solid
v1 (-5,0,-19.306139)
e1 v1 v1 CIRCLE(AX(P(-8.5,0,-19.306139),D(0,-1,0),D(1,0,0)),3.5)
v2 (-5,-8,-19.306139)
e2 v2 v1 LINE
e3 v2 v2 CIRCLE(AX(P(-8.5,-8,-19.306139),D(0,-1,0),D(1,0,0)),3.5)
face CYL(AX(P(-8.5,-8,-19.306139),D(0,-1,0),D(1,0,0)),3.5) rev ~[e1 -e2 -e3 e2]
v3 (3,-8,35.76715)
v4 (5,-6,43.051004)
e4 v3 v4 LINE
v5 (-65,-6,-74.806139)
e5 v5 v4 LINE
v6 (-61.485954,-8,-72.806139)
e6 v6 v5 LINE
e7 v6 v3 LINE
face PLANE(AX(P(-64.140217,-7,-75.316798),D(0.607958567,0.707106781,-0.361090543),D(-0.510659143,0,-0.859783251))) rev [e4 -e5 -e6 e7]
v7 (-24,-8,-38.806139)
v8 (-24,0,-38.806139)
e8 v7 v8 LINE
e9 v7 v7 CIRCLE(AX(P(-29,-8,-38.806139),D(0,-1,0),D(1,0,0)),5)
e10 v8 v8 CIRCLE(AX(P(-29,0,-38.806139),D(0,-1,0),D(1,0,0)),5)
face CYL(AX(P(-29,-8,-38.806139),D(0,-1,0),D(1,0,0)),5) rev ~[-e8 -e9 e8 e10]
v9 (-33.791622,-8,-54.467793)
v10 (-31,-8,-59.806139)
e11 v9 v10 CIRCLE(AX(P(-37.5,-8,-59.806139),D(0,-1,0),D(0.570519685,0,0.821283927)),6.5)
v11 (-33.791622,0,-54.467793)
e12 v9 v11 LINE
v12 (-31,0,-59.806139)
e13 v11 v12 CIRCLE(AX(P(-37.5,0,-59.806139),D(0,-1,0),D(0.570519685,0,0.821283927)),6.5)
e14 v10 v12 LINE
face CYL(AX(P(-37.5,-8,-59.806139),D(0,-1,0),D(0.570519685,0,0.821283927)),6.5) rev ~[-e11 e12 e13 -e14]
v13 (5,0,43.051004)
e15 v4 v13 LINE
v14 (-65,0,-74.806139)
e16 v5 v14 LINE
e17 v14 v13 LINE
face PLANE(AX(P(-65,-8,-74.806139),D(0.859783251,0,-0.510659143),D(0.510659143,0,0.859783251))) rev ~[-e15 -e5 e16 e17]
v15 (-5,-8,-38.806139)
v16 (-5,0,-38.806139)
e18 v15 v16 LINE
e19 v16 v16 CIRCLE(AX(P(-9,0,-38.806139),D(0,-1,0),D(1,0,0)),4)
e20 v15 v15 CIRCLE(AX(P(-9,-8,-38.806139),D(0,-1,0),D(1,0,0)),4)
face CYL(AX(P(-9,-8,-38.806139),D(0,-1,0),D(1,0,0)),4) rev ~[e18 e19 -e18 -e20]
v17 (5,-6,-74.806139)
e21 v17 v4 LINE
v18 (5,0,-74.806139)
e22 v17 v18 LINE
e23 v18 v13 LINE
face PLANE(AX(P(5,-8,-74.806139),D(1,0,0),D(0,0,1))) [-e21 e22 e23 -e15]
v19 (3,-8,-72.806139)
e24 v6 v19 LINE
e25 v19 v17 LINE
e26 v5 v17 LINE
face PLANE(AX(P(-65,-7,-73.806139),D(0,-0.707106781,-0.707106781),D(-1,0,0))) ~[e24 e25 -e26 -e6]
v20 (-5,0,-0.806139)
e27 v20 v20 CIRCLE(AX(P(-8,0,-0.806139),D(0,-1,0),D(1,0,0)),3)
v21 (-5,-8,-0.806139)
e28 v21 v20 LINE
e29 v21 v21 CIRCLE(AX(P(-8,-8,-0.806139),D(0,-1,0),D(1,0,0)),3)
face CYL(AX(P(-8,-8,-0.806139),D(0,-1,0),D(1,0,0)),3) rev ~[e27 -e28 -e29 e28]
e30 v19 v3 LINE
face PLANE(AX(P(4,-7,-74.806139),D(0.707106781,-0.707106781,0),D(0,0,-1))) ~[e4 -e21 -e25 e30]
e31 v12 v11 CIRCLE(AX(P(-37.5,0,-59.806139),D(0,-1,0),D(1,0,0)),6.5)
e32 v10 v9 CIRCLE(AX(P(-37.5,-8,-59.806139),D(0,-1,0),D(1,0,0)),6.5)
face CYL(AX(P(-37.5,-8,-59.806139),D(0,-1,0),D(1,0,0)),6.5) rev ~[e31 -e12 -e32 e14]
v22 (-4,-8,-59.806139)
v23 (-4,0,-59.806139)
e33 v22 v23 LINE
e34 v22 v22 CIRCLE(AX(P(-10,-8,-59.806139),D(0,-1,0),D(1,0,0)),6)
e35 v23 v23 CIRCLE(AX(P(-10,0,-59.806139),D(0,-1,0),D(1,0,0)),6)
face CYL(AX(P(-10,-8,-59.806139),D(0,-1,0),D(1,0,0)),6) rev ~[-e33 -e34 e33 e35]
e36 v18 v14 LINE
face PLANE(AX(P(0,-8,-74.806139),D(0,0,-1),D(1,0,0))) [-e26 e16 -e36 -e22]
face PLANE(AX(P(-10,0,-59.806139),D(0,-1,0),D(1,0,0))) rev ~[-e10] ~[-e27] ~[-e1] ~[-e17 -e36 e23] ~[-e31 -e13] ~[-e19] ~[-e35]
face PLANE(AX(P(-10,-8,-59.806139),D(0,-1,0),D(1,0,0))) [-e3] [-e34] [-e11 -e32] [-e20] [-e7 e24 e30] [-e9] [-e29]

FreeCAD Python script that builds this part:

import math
import FreeCAD as App
import Part
import Sketcher

V = App.Vector


def edges_at(feature, points):
    """Names of the edges that pass closest to the given points."""
    edges = feature.Shape.Edges
    near = lambda p: min(range(len(edges)), key=lambda i: edges[i].distToShape(Part.Vertex(*p))[0])
    return sorted({f"Edge{near(p) + 1}" for p in points})


def add_polygon(sketch, points):
    """Adds a closed chain of lines whose ends are joined by coincident constraints."""
    first, n = sketch.GeometryCount, len(points)
    for a, b in zip(points, points[1:] + points[:1]):
        sketch.addGeometry(Part.LineSegment(App.Vector(*a, 0), App.Vector(*b, 0)), False)
    for i in range(n):
        sketch.addConstraint(Sketcher.Constraint("Coincident", first + i, 2, first + (i + 1) % n, 1))

doc = App.newDocument("Part")
body = doc.addObject("PartDesign::Body", "Body")

# Sketch on XZ plane
sketch1 = body.newObject("Sketcher::SketchObject", "Sketch")
sketch1.AttachmentSupport = (doc.getObject("XZ_Plane"), [""])
sketch1.MapMode = "FlatFace"
add_polygon(sketch1, [(-70, -75), (0, -75), (0, 65)])  # lines 0-2
sketch1.addConstraint([
    Sketcher.Constraint("Horizontal", 0),
    Sketcher.Constraint("Vertical", 1),
    Sketcher.Constraint("PointOnObject", 0, 2, -2),
    Sketcher.Constraint("DistanceX", 0, 1, 0, 2, 70.0),
    Sketcher.Constraint("DistanceY", 1, 1, 1, 2, 140.0),
    Sketcher.Constraint("DistanceY", 0, 2, -1, 1, 74.806139),
])
pad1 = body.newObject("PartDesign::Pad", "Pad")
pad1.Profile = sketch1
pad1.Length = 8

# Sketch on XZ plane
sketch2 = body.newObject("Sketcher::SketchObject", "Sketch001")
sketch2.AttachmentSupport = (doc.getObject("XZ_Plane"), [""])
sketch2.MapMode = "FlatFace"
sketch2.AttachmentOffset = App.Placement(V(0, 0, 8), App.Rotation())
add_polygon(sketch2, [(-70, -75), (0, 65), (0, 115)])  # lines 0-2
sketch2.addConstraint([
    Sketcher.Constraint("Vertical", 1),
    Sketcher.Constraint("PointOnObject", 0, 2, -2),
    Sketcher.Constraint("DistanceY", 1, 1, 1, 2, 50.0),
    Sketcher.Constraint("DistanceX", 2, 2, -1, 1, 70.0),
    Sketcher.Constraint("DistanceY", 2, 2, 0, 2, 140.0),
    Sketcher.Constraint("DistanceY", -1, 1, 0, 2, 65.193861),
])
pad2 = body.newObject("PartDesign::Pad", "Pad001")
pad2.Profile = sketch2
pad2.Length = 8
pad2.Reversed = True

# Sketch on XZ plane
sketch3 = body.newObject("Sketcher::SketchObject", "Sketch002")
sketch3.AttachmentSupport = (doc.getObject("XZ_Plane"), [""])
sketch3.MapMode = "FlatFace"
sketch3.AttachmentOffset = App.Placement(V(0, 0, 8), App.Rotation())
add_polygon(sketch3, [(0, 65), (0, 115), (-70, -75)])  # lines 0-2
sketch3.addConstraint([
    Sketcher.Constraint("Vertical", 0),
    Sketcher.Constraint("PointOnObject", 0, 2, -2),
    Sketcher.Constraint("DistanceY", 0, 1, 0, 2, 50.0),
    Sketcher.Constraint("DistanceX", 1, 2, -1, 1, 70.0),
    Sketcher.Constraint("DistanceY", 1, 2, 0, 2, 190.0),
    Sketcher.Constraint("DistanceY", -1, 1, 0, 2, 115.193861),
])
pocket1 = body.newObject("PartDesign::Pocket", "Pocket")
pocket1.Profile = sketch3
pocket1.Length = 25

# Sketch on XZ plane
sketch4 = body.newObject("Sketcher::SketchObject", "Sketch003")
sketch4.AttachmentSupport = (doc.getObject("XZ_Plane"), [""])
sketch4.MapMode = "FlatFace"
sketch4.AttachmentOffset = App.Placement(V(0, 0, 8), App.Rotation())
sketch4.addGeometry([
    Part.ArcOfCircle(Part.Circle(V(-10, -59.8, 0), V(0, 0, 1), 5), math.radians(-90), math.radians(0)),  # 0
    Part.ArcOfCircle(Part.Circle(V(-10, -59.8, 0), V(0, 0, 1), 5), math.radians(0), math.radians(90)),  # 1
    Part.ArcOfCircle(Part.Circle(V(-10, -59.8, 0), V(0, 0, 1), 5), math.radians(90), math.radians(270)),  # 2
    Part.ArcOfCircle(Part.Circle(V(-10, -38.8, 0), V(0, 0, 1), 4), math.radians(-90), math.radians(0)),  # 3
    Part.ArcOfCircle(Part.Circle(V(-10, -38.8, 0), V(0, 0, 1), 4), math.radians(0), math.radians(90)),  # 4
    Part.ArcOfCircle(Part.Circle(V(-10, -38.8, 0), V(0, 0, 1), 4), math.radians(90), math.radians(270)),  # 5
    Part.ArcOfCircle(Part.Circle(V(-10, -19.3, 0), V(0, 0, 1), 3.5), math.radians(-90), math.radians(0)),  # 6
    Part.ArcOfCircle(Part.Circle(V(-10, -19.3, 0), V(0, 0, 1), 3.5), math.radians(0), math.radians(90)),  # 7
    Part.ArcOfCircle(Part.Circle(V(-10, -19.3, 0), V(0, 0, 1), 3.5), math.radians(90), math.radians(270)),  # 8
    Part.ArcOfCircle(Part.Circle(V(-10, -0.8, 0), V(0, 0, 1), 3), math.radians(0), math.radians(270)),  # 9
    Part.ArcOfCircle(Part.Circle(V(-10, -0.8, 0), V(0, 0, 1), 3), math.radians(-90), math.radians(0)),  # 10
], False)
sketch4.addConstraint([
    Sketcher.Constraint("Tangent", 0, 2, 1, 1),
    Sketcher.Constraint("Tangent", 1, 2, 2, 1),
    Sketcher.Constraint("Tangent", 2, 2, 0, 1),
    Sketcher.Constraint("Tangent", 3, 2, 4, 1),
    Sketcher.Constraint("Tangent", 4, 2, 5, 1),
    Sketcher.Constraint("Tangent", 5, 2, 3, 1),
    Sketcher.Constraint("Tangent", 6, 2, 7, 1),
    Sketcher.Constraint("Tangent", 7, 2, 8, 1),
    Sketcher.Constraint("Tangent", 8, 2, 6, 1),
    Sketcher.Constraint("Tangent", 9, 1, 10, 2),
    Sketcher.Constraint("Coincident", 10, 1, 9, 2),
    Sketcher.Constraint("Horizontal", 2, 3, 0, 2),
    Sketcher.Constraint("Horizontal", 5, 3, 3, 2),
    Sketcher.Constraint("Horizontal", 8, 3, 6, 2),
    Sketcher.Constraint("Horizontal", 10, 3, 9, 1),
    Sketcher.Constraint("Vertical", 2, 3, 3, 3),
    Sketcher.Constraint("Vertical", 5, 3, 6, 3),
    Sketcher.Constraint("Vertical", 8, 3, 9, 3),
    Sketcher.Constraint("Vertical", 10, 3, 1, 2),
    Sketcher.Constraint("Vertical", 1, 2, 2, 2),
    Sketcher.Constraint("Vertical", 2, 2, 4, 2),
    Sketcher.Constraint("Vertical", 4, 2, 5, 2),
    Sketcher.Constraint("Vertical", 5, 2, 7, 2),
    Sketcher.Constraint("Vertical", 7, 2, 8, 2),
    Sketcher.Constraint("Vertical", 8, 2, 10, 1),
    Sketcher.Constraint("Radius", 0, 5.0),
    Sketcher.Constraint("Radius", 3, 4.0),
    Sketcher.Constraint("Radius", 9, 3.0),
    Sketcher.Constraint("Radius", 6, 3.5),
    Sketcher.Constraint("DistanceX", 0, 3, -1, 1, 10.0),
    Sketcher.Constraint("DistanceY", 0, 3, 3, 3, 21.0),
    Sketcher.Constraint("DistanceY", 3, 3, 9, 3, 38.0),
    Sketcher.Constraint("DistanceY", 7, 2, 9, 3, 15.0),
    Sketcher.Constraint("DistanceY", 0, 3, -1, 1, 59.806139),
])
pocket2 = body.newObject("PartDesign::Pocket", "Pocket001")
pocket2.Profile = sketch4
pocket2.Length = 25

# Sketch on XZ plane
sketch5 = body.newObject("Sketcher::SketchObject", "Sketch004")
sketch5.AttachmentSupport = (doc.getObject("XZ_Plane"), [""])
sketch5.MapMode = "FlatFace"
sketch5.AttachmentOffset = App.Placement(V(0, 0, 8), App.Rotation())
add_polygon(sketch5, [(0, 35), (0, 65), (-70, -75)])  # lines 0-2
sketch5.addConstraint([
    Sketcher.Constraint("Vertical", 0),
    Sketcher.Constraint("PointOnObject", 0, 2, -2),
    Sketcher.Constraint("DistanceY", 0, 1, 0, 2, 30.0),
    Sketcher.Constraint("DistanceX", 1, 2, -1, 1, 70.0),
    Sketcher.Constraint("DistanceY", 1, 2, 0, 2, 140.0),
    Sketcher.Constraint("DistanceY", -1, 1, 0, 2, 65.193861),
])
pocket3 = body.newObject("PartDesign::Pocket", "Pocket002")
pocket3.Profile = sketch5
pocket3.Length = 25

# Sketch on XZ plane
sketch6 = body.newObject("Sketcher::SketchObject", "Sketch005")
sketch6.AttachmentSupport = (doc.getObject("XZ_Plane"), [""])
sketch6.MapMode = "FlatFace"
sketch6.AttachmentOffset = App.Placement(V(0, 0, 8), App.Rotation())
add_polygon(sketch6, [(5, 43), (0, 35), (0, -75), (5, -75)])  # lines 0-3
sketch6.addConstraint([
    Sketcher.Constraint("Vertical", 1),
    Sketcher.Constraint("Horizontal", 2),
    Sketcher.Constraint("Vertical", 3),
    Sketcher.Constraint("PointOnObject", 0, 2, -2),
    Sketcher.Constraint("DistanceX", 2, 1, 2, 2, 5.0),
    Sketcher.Constraint("DistanceY", 1, 2, 1, 1, 110.0),
    Sketcher.Constraint("DistanceY", 3, 1, 3, 2, 117.857143),
    Sketcher.Constraint("DistanceY", -1, 1, 0, 2, 35.193861),
])
pad3 = body.newObject("PartDesign::Pad", "Pad002")
pad3.Profile = sketch6
pad3.Length = 8
pad3.Reversed = True

# Sketch on XZ plane
sketch7 = body.newObject("Sketcher::SketchObject", "Sketch006")
sketch7.AttachmentSupport = (doc.getObject("XZ_Plane"), [""])
sketch7.MapMode = "FlatFace"
sketch7.AttachmentOffset = App.Placement(V(0, 0, 8), App.Rotation())
add_polygon(sketch7, [(5, 43), (-70, -75), (-65, -75)])  # lines 0-2
sketch7.addConstraint([
    Sketcher.Constraint("Horizontal", 1),
    Sketcher.Constraint("DistanceX", 1, 1, 1, 2, 5.0),
    Sketcher.Constraint("DistanceX", 0, 2, -1, 1, 70.0),
    Sketcher.Constraint("DistanceX", -1, 1, 2, 2, 5.0),
    Sketcher.Constraint("DistanceY", 0, 2, -1, 1, 74.806139),
    Sketcher.Constraint("Distance", 0, 139.697194),
])
pocket4 = body.newObject("PartDesign::Pocket", "Pocket003")
pocket4.Profile = sketch7
pocket4.Length = 25

# Sketch on XZ plane
sketch8 = body.newObject("Sketcher::SketchObject", "Sketch007")
sketch8.AttachmentSupport = (doc.getObject("XZ_Plane"), [""])
sketch8.MapMode = "FlatFace"
sketch8.AttachmentOffset = App.Placement(V(0, 0, 8), App.Rotation())
sketch8.addGeometry([
    Part.Circle(V(-10, -39, 0), V(0, 0, 1), 6),
    Part.Circle(V(-10, -19, 0), V(0, 0, 1), 7),
    Part.Circle(V(-10, -1, 0), V(0, 0, 1), 5),
], False)
sketch8.addConstraint([
    Sketcher.Constraint("Vertical", 0, 3, 1, 3),
    Sketcher.Constraint("Vertical", 1, 3, 2, 3),
    Sketcher.Constraint("DistanceX", 0, 3, -1, 1, 10.0),
    Sketcher.Constraint("DistanceY", 0, 3, 2, 3, 38.0),
    Sketcher.Constraint("DistanceY", 0, 3, 1, 3, 19.5),
    Sketcher.Constraint("Diameter", 2, 10.589818),
    Sketcher.Constraint("Diameter", 0, 12.675973),
    Sketcher.Constraint("Diameter", 1, 13.657083),
    Sketcher.Constraint("DistanceY", 0, 3, -1, 1, 38.806139),
])
pad4 = body.newObject("PartDesign::Pad", "Pad003")
pad4.Profile = sketch8
pad4.Length = 8
pad4.Reversed = True

# Sketch on XZ plane
sketch9 = body.newObject("Sketcher::SketchObject", "Sketch008")
sketch9.AttachmentSupport = (doc.getObject("XZ_Plane"), [""])
sketch9.MapMode = "FlatFace"
sketch9.AttachmentOffset = App.Placement(V(0, 0, 8), App.Rotation())
sketch9.addGeometry([
    Part.Circle(V(-9, -38.8, 0), V(0, 0, 1), 4),
    Part.Circle(V(-8.5, -19.3, 0), V(0, 0, 1), 3.5),
    Part.Circle(V(-8, -0.8, 0), V(0, 0, 1), 3),
], False)
sketch9.addConstraint([
    Sketcher.Constraint("Diameter", 0, 8.0),
    Sketcher.Constraint("Diameter", 1, 7.0),
    Sketcher.Constraint("Diameter", 2, 6.0),
    Sketcher.Constraint("DistanceX", 0, 3, -1, 1, 9.0),
    Sketcher.Constraint("DistanceX", 2, 3, -1, 1, 8.0),
    Sketcher.Constraint("DistanceY", 0, 3, 2, 3, 38.0),
    Sketcher.Constraint("DistanceX", 1, 3, -1, 1, 8.5),
    Sketcher.Constraint("DistanceY", 0, 3, 1, 3, 19.5),
    Sketcher.Constraint("DistanceY", 0, 3, -1, 1, 38.806139),
])
pocket5 = body.newObject("PartDesign::Pocket", "Pocket004")
pocket5.Profile = sketch9
pocket5.Length = 25

# Sketch on XZ plane
sketch10 = body.newObject("Sketcher::SketchObject", "Sketch009")
sketch10.AttachmentSupport = (doc.getObject("XZ_Plane"), [""])
sketch10.MapMode = "FlatFace"
sketch10.AttachmentOffset = App.Placement(V(0, 0, 8), App.Rotation())
sketch10.addGeometry([
    Part.Circle(V(-32, -60, 0), V(0, 0, 1), 6),
    Part.Circle(V(-29, -39, 0), V(0, 0, 1), 6),
], False)
sketch10.addConstraint([
    Sketcher.Constraint("Diameter", 0, 13.0),
    Sketcher.Constraint("Diameter", 1, 12.0),
    Sketcher.Constraint("DistanceX", 1, 3, -1, 1, 29.0),
    Sketcher.Constraint("DistanceY", 0, 3, 1, 3, 21.0),
    Sketcher.Constraint("DistanceX", 0, 3, -1, 1, 31.5),
    Sketcher.Constraint("DistanceY", 0, 3, -1, 1, 59.806139),
])
pocket6 = body.newObject("PartDesign::Pocket", "Pocket005")
pocket6.Profile = sketch10
pocket6.Length = 25

# Sketch on XZ plane
sketch11 = body.newObject("Sketcher::SketchObject", "Sketch010")
sketch11.AttachmentSupport = (doc.getObject("XZ_Plane"), [""])
sketch11.MapMode = "FlatFace"
sketch11.AttachmentOffset = App.Placement(V(0, 0, 8), App.Rotation())
sketch11.addGeometry([
    Part.Circle(V(-10, -60, 0), V(0, 0, 1), 6),
    Part.Circle(V(-10, -60, 0), V(0, 0, 1), 5),
], False)
sketch11.addConstraint([
    Sketcher.Constraint("Coincident", 1, 3, 0, 3),
    Sketcher.Constraint("Diameter", 0, 13.0),
    Sketcher.Constraint("Diameter", 1, 10.0),
    Sketcher.Constraint("DistanceX", 0, 3, -1, 1, 10.0),
    Sketcher.Constraint("DistanceY", 0, 3, -1, 1, 59.806139),
])
pocket7 = body.newObject("PartDesign::Pocket", "Pocket006")
pocket7.Profile = sketch11
pocket7.Length = 25

# Sketch on XZ plane
sketch12 = body.newObject("Sketcher::SketchObject", "Sketch011")
sketch12.AttachmentSupport = (doc.getObject("XZ_Plane"), [""])
sketch12.MapMode = "FlatFace"
sketch12.AttachmentOffset = App.Placement(V(0, 0, 8), App.Rotation())
sketch12.addGeometry([
    Part.Circle(V(-29, -39, 0), V(0, 0, 1), 6),
    Part.Circle(V(-29, -39, 0), V(0, 0, 1), 5),
], False)
sketch12.addConstraint([
    Sketcher.Constraint("Coincident", 1, 3, 0, 3),
    Sketcher.Constraint("Diameter", 0, 12.0),
    Sketcher.Constraint("Diameter", 1, 10.0),
    Sketcher.Constraint("DistanceX", 0, 3, -1, 1, 29.0),
    Sketcher.Constraint("DistanceY", 0, 3, -1, 1, 38.806139),
])
pad5 = body.newObject("PartDesign::Pad", "Pad004")
pad5.Profile = sketch12
pad5.Length = 8
pad5.Reversed = True

# Sketch on XZ plane
sketch13 = body.newObject("Sketcher::SketchObject", "Sketch012")
sketch13.AttachmentSupport = (doc.getObject("XZ_Plane"), [""])
sketch13.MapMode = "FlatFace"
sketch13.AttachmentOffset = App.Placement(V(0, 0, 8), App.Rotation())
sketch13.addGeometry(Part.Circle(V(-32, -60, 0), V(0, 0, 1), 10), False)
sketch13.addConstraint([
    Sketcher.Constraint("DistanceX", 0, 3, -1, 1, 31.5),
    Sketcher.Constraint("Diameter", 0, 19.368698),
    Sketcher.Constraint("DistanceY", 0, 3, -1, 1, 59.806139),
])
pad6 = body.newObject("PartDesign::Pad", "Pad005")
pad6.Profile = sketch13
pad6.Length = 8
pad6.Reversed = True

# Sketch on XZ plane
sketch14 = body.newObject("Sketcher::SketchObject", "Sketch013")
sketch14.AttachmentSupport = (doc.getObject("XZ_Plane"), [""])
sketch14.MapMode = "FlatFace"
sketch14.AttachmentOffset = App.Placement(V(0, 0, 8), App.Rotation())
sketch14.addGeometry([
    Part.Circle(V(-10, -60, 0), V(0, 0, 1), 6),
    Part.Circle(V(-10, -60, 0), V(0, 0, 1), 6),
], False)
sketch14.addConstraint([
    Sketcher.Constraint("Coincident", 1, 3, 0, 3),
    Sketcher.Constraint("Diameter", 0, 13.0),
    Sketcher.Constraint("Diameter", 1, 12.0),
    Sketcher.Constraint("DistanceX", 0, 3, -1, 1, 10.0),
    Sketcher.Constraint("DistanceY", 0, 3, -1, 1, 59.806139),
])
pad7 = body.newObject("PartDesign::Pad", "Pad006")
pad7.Profile = sketch14
pad7.Length = 8
pad7.Reversed = True

# Sketch on XZ plane
sketch15 = body.newObject("Sketcher::SketchObject", "Sketch014")
sketch15.AttachmentSupport = (doc.getObject("XZ_Plane"), [""])
sketch15.MapMode = "FlatFace"
sketch15.AttachmentOffset = App.Placement(V(0, 0, 8), App.Rotation())
sketch15.addGeometry([
    Part.ArcOfCircle(Part.Circle(V(-38, -60, 0), V(0, 0, 1), 6), math.radians(55), math.radians(360)),
    Part.ArcOfCircle(Part.Circle(V(-38, -60, 0), V(0, 0, 1), 6), math.radians(0), math.radians(55)),
], False)
sketch15.addConstraint([
    Sketcher.Constraint("Tangent", 0, 1, 1, 2),
    Sketcher.Constraint("Coincident", 1, 1, 0, 2),
    Sketcher.Constraint("Horizontal", 0, 3, 1, 1),
    Sketcher.Constraint("Radius", 0, 6.5),
    Sketcher.Constraint("DistanceX", 1, 1, -1, 1, 31.0),
    Sketcher.Constraint("DistanceY", 0, 3, -1, 1, 59.806139),
    Sketcher.Constraint("DistanceX", 0, 1, -1, 1, 33.791622),
])
pocket8 = body.newObject("PartDesign::Pocket", "Pocket007")
pocket8.Profile = sketch15
pocket8.Length = 25
doc.recompute()

chamfer = body.newObject("PartDesign::Chamfer", "Chamfer")
chamfer.Base = (pocket8, edges_at(pocket8, [(5, -8, -15.878), (-30, -8, -15.878), (-30, -8, -74.806)]))
chamfer.Size = 2

doc.recompute()
